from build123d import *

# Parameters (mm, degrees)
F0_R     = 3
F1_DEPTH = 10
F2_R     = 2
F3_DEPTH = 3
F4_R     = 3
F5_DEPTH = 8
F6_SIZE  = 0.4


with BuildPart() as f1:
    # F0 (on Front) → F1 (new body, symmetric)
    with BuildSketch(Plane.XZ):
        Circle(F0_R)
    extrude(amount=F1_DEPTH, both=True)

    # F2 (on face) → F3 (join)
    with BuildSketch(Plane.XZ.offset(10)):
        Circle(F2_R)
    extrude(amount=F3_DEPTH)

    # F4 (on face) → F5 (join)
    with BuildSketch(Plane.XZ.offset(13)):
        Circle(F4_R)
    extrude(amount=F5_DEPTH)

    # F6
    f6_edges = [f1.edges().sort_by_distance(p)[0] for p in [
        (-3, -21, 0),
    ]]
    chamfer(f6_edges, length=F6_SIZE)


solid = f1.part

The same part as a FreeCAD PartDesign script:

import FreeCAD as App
import Part
import Sketcher
from FreeCAD import Vector
Q = App.Units.Quantity


def edges_at(feature, points):
    """Names of the edges that pass closest to the given points."""
    edges = feature.Shape.Edges
    near = lambda p: min(range(len(edges)), key=lambda i: edges[i].distToShape(Part.Vertex(*p))[0])
    return sorted({f"Edge{near(p) + 1}" for p in points})

doc = App.newDocument("Part")
params = doc.addObject("Spreadsheet::Sheet", "Params")
for row, (alias, value) in enumerate([
    ("sketch1_diameter", "6 mm"),
    ("pad1_length", "20 mm"),
    ("sketch2_diameter", "4 mm"),
    ("pad2_length", "3 mm"),
    ("sketch3_diameter", "6 mm"),
    ("pad3_length", "8 mm"),
    ("chamfer_size", "0.4 mm"),
], start=1):
    params.set(f"A{row}", alias)
    params.set(f"B{row}", "=" + value)
    params.setAlias(f"B{row}", alias)

body = doc.addObject("PartDesign::Body", "Body")

sketch1 = doc.addObject("Sketcher::SketchObject", "Sketch")
body.addObject(sketch1)
sketch1.AttachmentSupport = (doc.XZ_Plane, [""])
sketch1.MapMode = "FlatFace"
sketch1.addGeometry(Part.Circle(Vector(0, 0, 0), Vector(0, 0, 1), 3), False)
sketch1.addConstraint(Sketcher.Constraint("Coincident", 0, 3, -1, 1))
sketch1.addConstraint(Sketcher.Constraint("Diameter", 0, Q("6 mm")))
sketch1.setExpression("Constraints[1]", "Params.sketch1_diameter")
pad1 = doc.addObject("PartDesign::Pad", "Pad")
body.addObject(pad1)
pad1.Profile = sketch1
pad1.setExpression("Length", "Params.pad1_length")
pad1.Midplane = True

sketch2 = doc.addObject("Sketcher::SketchObject", "Sketch001")
body.addObject(sketch2)
sketch2.AttachmentSupport = (doc.XZ_Plane, [""])
sketch2.MapMode = "FlatFace"
sketch2.AttachmentOffset = App.Placement(Vector(0, 0, 10), App.Rotation())
sketch2.addGeometry(Part.Circle(Vector(0, 0, 0), Vector(0, 0, 1), 2), False)
sketch2.addConstraint(Sketcher.Constraint("Coincident", 0, 3, -1, 1))
sketch2.addConstraint(Sketcher.Constraint("Diameter", 0, Q("4 mm")))
sketch2.setExpression("Constraints[1]", "Params.sketch2_diameter")
pad2 = doc.addObject("PartDesign::Pad", "Pad001")
body.addObject(pad2)
pad2.Profile = sketch2
pad2.setExpression("Length", "Params.pad2_length")

sketch3 = doc.addObject("Sketcher::SketchObject", "Sketch002")
body.addObject(sketch3)
sketch3.AttachmentSupport = (doc.XZ_Plane, [""])
sketch3.MapMode = "FlatFace"
sketch3.AttachmentOffset = App.Placement(Vector(0, 0, 13), App.Rotation())
sketch3.addGeometry(Part.Circle(Vector(0, 0, 0), Vector(0, 0, 1), 3), False)
sketch3.addConstraint(Sketcher.Constraint("Coincident", 0, 3, -1, 1))
sketch3.addConstraint(Sketcher.Constraint("Diameter", 0, Q("6 mm")))
sketch3.setExpression("Constraints[1]", "Params.sketch3_diameter")
pad3 = doc.addObject("PartDesign::Pad", "Pad002")
body.addObject(pad3)
pad3.Profile = sketch3
pad3.setExpression("Length", "Params.pad3_length")
doc.recompute()

chamfer = doc.addObject("PartDesign::Chamfer", "Chamfer")
body.addObject(chamfer)
chamfer.Base = (pad3, edges_at(pad3, [(-3, -21, 0)]))
chamfer.setExpression("Size", "Params.chamfer_size")

doc.recompute()
